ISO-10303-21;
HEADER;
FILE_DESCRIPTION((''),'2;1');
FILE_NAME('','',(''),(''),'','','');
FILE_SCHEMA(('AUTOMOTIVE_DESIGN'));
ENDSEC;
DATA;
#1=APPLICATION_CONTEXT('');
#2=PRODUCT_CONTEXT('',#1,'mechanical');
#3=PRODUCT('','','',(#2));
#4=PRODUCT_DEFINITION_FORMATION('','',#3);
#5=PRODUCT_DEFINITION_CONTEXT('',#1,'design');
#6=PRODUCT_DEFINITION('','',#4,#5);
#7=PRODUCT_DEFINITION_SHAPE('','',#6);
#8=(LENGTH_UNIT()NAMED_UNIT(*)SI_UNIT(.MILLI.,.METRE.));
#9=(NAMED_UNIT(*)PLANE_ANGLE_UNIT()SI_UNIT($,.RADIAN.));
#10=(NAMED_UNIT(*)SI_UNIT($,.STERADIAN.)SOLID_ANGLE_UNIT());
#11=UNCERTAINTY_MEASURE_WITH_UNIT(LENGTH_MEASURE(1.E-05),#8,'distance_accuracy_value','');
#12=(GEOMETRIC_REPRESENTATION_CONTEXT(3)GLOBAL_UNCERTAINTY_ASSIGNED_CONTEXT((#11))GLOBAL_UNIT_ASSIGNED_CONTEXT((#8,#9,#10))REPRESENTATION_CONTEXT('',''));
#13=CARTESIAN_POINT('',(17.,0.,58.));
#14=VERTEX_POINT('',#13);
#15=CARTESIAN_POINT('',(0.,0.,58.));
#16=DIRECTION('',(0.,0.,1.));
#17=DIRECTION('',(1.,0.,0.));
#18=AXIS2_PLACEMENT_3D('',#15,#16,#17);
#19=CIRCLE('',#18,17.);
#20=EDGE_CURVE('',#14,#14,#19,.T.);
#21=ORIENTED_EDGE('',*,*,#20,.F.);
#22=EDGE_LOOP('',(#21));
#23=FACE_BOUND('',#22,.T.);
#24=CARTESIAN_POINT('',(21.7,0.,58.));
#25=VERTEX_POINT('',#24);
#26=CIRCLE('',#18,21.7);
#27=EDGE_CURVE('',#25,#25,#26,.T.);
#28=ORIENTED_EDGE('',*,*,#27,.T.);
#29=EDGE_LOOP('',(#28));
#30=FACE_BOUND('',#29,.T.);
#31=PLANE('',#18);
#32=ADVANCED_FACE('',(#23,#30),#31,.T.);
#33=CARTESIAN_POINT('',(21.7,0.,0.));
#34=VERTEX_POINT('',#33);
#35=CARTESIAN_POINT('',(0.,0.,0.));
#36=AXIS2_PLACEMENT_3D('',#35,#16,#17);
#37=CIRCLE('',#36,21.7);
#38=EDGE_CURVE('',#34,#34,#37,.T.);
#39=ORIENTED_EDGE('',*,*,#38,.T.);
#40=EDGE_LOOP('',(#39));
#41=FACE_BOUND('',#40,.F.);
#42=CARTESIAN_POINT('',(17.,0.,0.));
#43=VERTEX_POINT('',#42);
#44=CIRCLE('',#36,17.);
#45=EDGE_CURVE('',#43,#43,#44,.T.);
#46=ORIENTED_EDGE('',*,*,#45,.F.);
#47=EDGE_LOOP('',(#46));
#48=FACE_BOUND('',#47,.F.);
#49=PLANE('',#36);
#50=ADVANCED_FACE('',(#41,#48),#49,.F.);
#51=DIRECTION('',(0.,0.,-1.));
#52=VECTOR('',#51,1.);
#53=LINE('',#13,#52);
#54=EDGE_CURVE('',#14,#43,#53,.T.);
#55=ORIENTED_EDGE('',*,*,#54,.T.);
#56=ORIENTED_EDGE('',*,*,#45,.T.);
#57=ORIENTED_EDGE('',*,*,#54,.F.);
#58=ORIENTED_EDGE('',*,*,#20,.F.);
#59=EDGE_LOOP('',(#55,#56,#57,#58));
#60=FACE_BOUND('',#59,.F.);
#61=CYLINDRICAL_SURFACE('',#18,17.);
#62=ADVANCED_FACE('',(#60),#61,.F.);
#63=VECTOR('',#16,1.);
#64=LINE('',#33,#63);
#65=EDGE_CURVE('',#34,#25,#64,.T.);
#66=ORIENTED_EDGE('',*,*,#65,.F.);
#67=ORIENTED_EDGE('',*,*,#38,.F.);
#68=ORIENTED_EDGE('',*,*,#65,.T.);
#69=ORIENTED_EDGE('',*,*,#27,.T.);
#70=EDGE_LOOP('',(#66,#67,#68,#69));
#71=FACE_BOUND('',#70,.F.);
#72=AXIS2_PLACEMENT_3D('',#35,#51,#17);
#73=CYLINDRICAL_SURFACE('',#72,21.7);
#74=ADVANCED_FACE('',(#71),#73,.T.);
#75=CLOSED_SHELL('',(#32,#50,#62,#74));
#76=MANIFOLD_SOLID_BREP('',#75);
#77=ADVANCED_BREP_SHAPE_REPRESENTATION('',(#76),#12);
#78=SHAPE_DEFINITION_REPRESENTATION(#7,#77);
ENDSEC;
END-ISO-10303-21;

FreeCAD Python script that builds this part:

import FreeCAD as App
import Part
import Sketcher
Q = App.Units.Quantity

doc = App.newDocument("Part")
body = doc.addObject("PartDesign::Body", "Body")

# Sketch on XY plane
sketch1 = doc.addObject("Sketcher::SketchObject", "Sketch")
body.addObject(sketch1)
sketch1.AttachmentSupport = (doc.XY_Plane, [""])
sketch1.MapMode = "FlatFace"
sketch1.addGeometry(Part.Circle(App.Vector(0, 0, 0), App.Vector(0, 0, 1), 21.7), False)
sketch1.addConstraint([
    Sketcher.Constraint("Coincident", 0, 3, -1, 1),
    Sketcher.Constraint("Diameter", 0, Q("43.4 mm")),
])
pad1 = doc.addObject("PartDesign::Pad", "Pad")
body.addObject(pad1)
pad1.Profile = sketch1
pad1.Length = 58

# Sketch on XY plane
sketch2 = doc.addObject("Sketcher::SketchObject", "Sketch001")
body.addObject(sketch2)
sketch2.AttachmentSupport = (doc.XY_Plane, [""])
sketch2.MapMode = "FlatFace"
sketch2.AttachmentOffset = App.Placement(App.Vector(0, 0, 58), App.Rotation())
sketch2.addGeometry(Part.Circle(App.Vector(0, 0, 0), App.Vector(0, 0, 1), 17), False)
sketch2.addConstraint([
    Sketcher.Constraint("Coincident", 0, 3, -1, 1),
    Sketcher.Constraint("Diameter", 0, Q("34 mm")),
])
pocket1 = doc.addObject("PartDesign::Pocket", "Pocket")
body.addObject(pocket1)
pocket1.Profile = sketch2
pocket1.Length = 58

doc.recompute()
